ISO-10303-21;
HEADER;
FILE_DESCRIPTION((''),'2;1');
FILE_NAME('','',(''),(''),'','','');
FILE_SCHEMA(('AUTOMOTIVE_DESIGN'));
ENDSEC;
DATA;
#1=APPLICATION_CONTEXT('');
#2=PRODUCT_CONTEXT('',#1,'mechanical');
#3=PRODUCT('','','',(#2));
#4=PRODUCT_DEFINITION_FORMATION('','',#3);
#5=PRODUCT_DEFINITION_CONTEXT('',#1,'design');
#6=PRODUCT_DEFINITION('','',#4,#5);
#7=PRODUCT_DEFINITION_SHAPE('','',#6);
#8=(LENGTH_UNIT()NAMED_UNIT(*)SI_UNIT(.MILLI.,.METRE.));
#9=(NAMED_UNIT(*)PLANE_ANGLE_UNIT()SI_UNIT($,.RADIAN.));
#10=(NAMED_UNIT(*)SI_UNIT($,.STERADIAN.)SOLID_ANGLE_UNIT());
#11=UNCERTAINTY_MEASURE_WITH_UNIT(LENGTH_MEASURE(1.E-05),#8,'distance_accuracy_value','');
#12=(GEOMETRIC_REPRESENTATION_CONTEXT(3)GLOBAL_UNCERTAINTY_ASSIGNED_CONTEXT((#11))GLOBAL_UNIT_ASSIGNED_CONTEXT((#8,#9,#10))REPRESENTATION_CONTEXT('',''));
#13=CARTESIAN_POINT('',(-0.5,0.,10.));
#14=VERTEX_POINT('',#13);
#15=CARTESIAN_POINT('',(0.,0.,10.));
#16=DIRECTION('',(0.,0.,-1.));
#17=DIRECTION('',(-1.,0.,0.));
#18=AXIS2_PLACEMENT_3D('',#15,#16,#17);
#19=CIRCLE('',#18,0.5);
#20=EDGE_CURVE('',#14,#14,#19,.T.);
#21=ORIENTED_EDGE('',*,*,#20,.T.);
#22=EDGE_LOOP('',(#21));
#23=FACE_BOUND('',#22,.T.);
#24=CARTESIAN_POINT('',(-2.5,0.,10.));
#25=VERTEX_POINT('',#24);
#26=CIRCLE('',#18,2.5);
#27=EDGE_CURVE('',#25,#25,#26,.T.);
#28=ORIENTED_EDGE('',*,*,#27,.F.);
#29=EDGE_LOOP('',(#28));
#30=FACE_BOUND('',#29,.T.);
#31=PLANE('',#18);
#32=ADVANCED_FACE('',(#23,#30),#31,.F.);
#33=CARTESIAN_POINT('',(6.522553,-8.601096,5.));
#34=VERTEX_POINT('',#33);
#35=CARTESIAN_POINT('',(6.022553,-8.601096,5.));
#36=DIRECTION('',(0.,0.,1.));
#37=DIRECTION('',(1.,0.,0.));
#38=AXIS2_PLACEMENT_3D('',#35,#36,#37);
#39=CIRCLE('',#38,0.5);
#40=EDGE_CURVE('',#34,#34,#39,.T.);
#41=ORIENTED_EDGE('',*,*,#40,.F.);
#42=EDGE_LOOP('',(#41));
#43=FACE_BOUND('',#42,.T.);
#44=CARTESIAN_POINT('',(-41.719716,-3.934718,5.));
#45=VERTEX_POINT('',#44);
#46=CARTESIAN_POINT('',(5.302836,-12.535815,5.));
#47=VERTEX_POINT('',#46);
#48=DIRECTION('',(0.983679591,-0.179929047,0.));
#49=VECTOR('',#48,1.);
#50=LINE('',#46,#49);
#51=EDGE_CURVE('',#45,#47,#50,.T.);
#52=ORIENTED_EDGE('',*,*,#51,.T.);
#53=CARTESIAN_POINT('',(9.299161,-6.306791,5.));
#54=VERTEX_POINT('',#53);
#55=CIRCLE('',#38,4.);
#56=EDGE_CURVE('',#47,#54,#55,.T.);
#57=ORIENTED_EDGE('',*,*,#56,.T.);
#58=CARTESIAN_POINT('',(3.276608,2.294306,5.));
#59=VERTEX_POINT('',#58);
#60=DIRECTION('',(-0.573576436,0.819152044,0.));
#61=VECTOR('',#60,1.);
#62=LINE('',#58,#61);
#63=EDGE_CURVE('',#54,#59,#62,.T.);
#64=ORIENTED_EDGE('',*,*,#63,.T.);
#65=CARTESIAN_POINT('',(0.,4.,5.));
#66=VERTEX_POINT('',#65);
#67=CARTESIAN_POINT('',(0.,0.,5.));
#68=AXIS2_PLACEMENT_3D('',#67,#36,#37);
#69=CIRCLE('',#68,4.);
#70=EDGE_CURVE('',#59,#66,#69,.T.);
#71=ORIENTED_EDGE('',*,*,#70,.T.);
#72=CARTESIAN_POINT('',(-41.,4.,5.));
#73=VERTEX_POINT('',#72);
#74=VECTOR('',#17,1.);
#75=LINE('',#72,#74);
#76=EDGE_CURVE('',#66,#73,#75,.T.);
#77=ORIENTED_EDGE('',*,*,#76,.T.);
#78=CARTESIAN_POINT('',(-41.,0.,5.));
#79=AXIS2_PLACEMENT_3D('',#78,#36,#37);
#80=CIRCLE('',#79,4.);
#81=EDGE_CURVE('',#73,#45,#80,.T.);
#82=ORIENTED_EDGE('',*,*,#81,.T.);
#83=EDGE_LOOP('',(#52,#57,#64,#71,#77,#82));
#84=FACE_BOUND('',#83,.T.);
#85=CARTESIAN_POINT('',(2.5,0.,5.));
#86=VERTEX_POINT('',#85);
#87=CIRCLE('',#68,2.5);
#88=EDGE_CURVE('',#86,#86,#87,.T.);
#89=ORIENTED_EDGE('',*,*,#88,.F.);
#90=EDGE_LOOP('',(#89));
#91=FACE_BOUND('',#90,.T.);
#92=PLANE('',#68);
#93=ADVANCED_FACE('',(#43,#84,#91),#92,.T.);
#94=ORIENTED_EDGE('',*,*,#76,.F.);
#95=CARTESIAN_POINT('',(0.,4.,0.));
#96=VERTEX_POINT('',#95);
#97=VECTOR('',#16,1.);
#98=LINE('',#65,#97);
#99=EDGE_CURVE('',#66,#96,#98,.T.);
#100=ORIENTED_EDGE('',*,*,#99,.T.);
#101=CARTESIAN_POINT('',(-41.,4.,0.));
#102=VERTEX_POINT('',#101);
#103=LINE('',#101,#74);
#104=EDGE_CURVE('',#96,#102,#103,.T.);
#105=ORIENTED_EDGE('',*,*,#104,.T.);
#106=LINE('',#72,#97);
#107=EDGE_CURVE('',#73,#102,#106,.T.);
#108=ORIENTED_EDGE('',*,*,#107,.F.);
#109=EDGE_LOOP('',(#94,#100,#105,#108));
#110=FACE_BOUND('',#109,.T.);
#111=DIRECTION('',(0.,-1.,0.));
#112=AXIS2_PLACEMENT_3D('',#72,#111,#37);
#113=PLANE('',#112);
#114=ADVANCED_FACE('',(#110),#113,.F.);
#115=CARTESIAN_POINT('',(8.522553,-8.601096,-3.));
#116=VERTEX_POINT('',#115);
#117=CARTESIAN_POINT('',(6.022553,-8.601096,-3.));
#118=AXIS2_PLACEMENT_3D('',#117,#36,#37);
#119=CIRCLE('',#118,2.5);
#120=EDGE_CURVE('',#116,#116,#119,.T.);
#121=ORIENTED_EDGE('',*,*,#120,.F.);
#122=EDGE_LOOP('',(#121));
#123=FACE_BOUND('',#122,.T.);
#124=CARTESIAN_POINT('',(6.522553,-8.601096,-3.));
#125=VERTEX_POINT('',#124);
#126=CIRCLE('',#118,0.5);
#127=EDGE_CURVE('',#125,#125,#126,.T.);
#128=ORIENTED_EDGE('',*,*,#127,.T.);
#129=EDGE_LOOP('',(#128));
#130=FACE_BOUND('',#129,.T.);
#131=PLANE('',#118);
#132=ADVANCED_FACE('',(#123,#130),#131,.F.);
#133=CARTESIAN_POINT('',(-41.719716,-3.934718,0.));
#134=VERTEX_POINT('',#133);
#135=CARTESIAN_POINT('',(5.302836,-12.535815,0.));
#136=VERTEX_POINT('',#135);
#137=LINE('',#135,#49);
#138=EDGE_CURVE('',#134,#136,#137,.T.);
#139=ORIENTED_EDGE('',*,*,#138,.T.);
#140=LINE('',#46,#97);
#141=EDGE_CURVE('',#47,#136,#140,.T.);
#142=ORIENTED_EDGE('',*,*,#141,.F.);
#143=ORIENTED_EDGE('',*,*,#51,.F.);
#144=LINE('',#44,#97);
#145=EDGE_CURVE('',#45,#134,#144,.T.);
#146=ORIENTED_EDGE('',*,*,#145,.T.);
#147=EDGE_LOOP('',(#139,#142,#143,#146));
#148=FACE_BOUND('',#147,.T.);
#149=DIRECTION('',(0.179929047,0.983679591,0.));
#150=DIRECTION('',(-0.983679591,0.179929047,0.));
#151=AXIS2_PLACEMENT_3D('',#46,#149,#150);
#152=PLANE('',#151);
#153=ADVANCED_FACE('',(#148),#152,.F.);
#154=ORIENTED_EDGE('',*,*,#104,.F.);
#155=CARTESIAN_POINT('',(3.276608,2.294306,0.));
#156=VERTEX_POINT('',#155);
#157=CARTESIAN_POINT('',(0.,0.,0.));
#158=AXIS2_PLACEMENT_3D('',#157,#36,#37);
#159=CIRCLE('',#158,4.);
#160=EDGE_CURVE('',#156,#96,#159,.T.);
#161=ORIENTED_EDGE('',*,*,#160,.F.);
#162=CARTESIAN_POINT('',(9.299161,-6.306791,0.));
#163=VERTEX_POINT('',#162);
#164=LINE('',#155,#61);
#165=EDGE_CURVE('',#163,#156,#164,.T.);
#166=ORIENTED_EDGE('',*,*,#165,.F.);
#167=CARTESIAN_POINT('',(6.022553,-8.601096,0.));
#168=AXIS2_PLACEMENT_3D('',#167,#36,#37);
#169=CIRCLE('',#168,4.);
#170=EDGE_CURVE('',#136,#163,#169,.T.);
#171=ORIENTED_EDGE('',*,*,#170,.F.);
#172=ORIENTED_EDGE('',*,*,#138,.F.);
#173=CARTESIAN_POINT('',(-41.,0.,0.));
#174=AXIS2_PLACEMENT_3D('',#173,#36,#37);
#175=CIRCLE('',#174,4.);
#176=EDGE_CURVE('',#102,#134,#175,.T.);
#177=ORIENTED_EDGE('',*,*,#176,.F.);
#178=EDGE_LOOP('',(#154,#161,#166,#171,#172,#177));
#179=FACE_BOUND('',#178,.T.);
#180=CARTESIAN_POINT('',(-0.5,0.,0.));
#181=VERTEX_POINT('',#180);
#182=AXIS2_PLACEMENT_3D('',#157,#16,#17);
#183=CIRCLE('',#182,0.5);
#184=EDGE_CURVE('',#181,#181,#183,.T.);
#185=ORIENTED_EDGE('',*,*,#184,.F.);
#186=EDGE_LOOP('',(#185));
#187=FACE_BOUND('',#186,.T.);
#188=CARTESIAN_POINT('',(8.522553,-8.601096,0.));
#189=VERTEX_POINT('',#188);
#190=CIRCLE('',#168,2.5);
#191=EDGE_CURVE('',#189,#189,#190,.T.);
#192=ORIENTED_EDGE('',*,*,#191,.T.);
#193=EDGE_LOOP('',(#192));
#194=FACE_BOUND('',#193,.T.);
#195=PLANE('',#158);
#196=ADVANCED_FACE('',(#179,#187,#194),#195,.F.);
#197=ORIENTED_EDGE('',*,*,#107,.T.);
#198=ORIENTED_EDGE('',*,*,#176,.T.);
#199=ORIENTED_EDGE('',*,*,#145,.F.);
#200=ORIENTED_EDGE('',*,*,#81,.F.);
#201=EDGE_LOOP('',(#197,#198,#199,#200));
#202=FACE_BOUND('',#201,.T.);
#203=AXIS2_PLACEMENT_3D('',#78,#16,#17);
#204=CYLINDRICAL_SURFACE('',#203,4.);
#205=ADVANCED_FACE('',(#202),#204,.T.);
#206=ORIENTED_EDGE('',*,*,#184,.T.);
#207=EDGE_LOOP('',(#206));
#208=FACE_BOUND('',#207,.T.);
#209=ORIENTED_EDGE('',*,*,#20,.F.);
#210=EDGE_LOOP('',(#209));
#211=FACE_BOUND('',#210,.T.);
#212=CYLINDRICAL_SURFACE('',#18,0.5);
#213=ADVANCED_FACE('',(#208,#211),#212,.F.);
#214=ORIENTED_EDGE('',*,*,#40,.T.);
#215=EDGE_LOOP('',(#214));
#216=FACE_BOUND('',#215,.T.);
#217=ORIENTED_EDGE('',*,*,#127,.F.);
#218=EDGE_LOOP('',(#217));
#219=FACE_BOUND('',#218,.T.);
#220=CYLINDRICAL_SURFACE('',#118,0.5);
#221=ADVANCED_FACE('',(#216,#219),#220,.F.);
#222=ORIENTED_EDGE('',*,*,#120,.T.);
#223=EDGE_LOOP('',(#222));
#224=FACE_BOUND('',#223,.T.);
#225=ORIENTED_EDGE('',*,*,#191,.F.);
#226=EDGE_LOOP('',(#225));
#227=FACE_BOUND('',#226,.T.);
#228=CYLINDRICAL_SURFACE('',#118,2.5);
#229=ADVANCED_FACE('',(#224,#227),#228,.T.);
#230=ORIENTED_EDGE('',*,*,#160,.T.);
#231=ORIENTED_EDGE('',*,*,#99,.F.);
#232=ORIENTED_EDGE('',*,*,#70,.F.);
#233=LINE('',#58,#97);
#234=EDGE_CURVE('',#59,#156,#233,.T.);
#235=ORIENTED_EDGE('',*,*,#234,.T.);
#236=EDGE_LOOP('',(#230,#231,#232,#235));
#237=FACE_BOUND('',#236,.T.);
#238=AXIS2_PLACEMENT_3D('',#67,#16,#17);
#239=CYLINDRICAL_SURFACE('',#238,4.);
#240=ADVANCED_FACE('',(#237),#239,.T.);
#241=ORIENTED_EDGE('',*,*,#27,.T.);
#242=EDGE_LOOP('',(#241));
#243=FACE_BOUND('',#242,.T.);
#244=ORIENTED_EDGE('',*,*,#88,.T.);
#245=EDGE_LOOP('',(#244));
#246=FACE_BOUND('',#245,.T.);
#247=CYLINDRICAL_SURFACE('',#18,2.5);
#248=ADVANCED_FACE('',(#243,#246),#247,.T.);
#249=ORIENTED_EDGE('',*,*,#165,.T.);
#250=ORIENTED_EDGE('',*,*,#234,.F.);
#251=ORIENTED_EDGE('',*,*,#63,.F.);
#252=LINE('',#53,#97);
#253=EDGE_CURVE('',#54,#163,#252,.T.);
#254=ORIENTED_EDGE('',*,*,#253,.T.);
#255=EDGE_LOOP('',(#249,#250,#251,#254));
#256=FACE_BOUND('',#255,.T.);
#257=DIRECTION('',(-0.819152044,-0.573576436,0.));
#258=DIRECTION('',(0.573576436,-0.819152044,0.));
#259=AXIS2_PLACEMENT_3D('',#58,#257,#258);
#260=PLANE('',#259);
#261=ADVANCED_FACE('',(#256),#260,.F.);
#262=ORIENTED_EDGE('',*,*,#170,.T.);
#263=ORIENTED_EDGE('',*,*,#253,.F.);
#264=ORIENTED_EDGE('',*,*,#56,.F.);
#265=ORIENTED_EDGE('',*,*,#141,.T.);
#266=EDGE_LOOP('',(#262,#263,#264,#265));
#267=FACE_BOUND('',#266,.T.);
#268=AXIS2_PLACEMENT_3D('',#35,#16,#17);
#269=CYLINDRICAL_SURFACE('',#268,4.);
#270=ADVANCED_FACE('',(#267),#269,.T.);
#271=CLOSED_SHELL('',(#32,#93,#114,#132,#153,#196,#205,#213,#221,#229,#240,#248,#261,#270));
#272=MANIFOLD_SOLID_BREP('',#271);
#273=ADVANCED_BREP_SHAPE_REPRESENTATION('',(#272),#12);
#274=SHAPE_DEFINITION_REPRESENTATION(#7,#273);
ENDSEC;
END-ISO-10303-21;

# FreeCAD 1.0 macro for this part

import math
import FreeCAD as App
import Part
import Sketcher

V = App.Vector
Q = App.Units.Quantity

doc = App.newDocument("Part")
params = doc.addObject("Spreadsheet::Sheet", "Params")
for row, (alias, value) in enumerate([
    ("sketch1_diameter", "5 mm"),
    ("sketch1_radius", "4 mm"),
    ("sketch1_width", "41 mm"),
    ("sketch1_length", "10.5 mm"),
    ("pad1_length", "5 mm"),
    ("sketch2_diameter", "5 mm"),
    ("sketch2_diameter2", "1 mm"),
    ("pad2_length", "8 mm"),
    ("sketch3_diameter", "5 mm"),
    ("sketch3_diameter2", "1 mm"),
    ("pad3_length", "10 mm"),
], start=1):
    params.set(f"A{row}", alias)
    params.set(f"B{row}", "=" + value)
    params.setAlias(f"B{row}", alias)

body = doc.addObject("PartDesign::Body", "Body")

sketch1 = body.newObject("Sketcher::SketchObject", "Sketch")
sketch1.AttachmentSupport = (doc.getObject("XY_Plane"), [""])
sketch1.MapMode = "FlatFace"
sketch1.addGeometry(Part.LineSegment(V(0, 4, 0), V(-41, 4, 0)), False)
sketch1.addGeometry(Part.ArcOfCircle(Part.Circle(V(-41, 0, 0), V(0, 0, 1), 4), math.radians(90), math.radians(260)), False)
sketch1.addGeometry(Part.LineSegment(V(-41.7, -3.9, 0), V(5.3, -12.5, 0)), False)
sketch1.addGeometry(Part.ArcOfCircle(Part.Circle(V(6, -8.6, 0), V(0, 0, 1), 4), math.radians(-100), math.radians(35)), False)
sketch1.addGeometry(Part.LineSegment(V(9.3, -6.3, 0), V(3.3, 2.3, 0)), False)
sketch1.addGeometry(Part.ArcOfCircle(Part.Circle(V(0, 0, 0), V(0, 0, 1), 4), math.radians(35), math.radians(90)), False)
sketch1.addGeometry(Part.Circle(V(6, -8.6, 0), V(0, 0, 1), 2.5), False)
sketch1.addGeometry(Part.Circle(V(0, 0, 0), V(0, 0, 1), 2.5), False)
sketch1.addConstraint(Sketcher.Constraint("Tangent", 0, 2, 1, 1))
sketch1.addConstraint(Sketcher.Constraint("Tangent", 1, 2, 2, 1))
sketch1.addConstraint(Sketcher.Constraint("Tangent", 2, 2, 3, 1))
sketch1.addConstraint(Sketcher.Constraint("Tangent", 3, 2, 4, 1))
sketch1.addConstraint(Sketcher.Constraint("Tangent", 4, 2, 5, 1))
sketch1.addConstraint(Sketcher.Constraint("Tangent", 5, 2, 0, 1))
sketch1.addConstraint(Sketcher.Constraint("Horizontal", 0))
sketch1.addConstraint(Sketcher.Constraint("Coincident", 5, 3, -1, 1))
sketch1.addConstraint(Sketcher.Constraint("Coincident", 7, 3, -1, 1))
sketch1.addConstraint(Sketcher.Constraint("Coincident", 6, 3, 3, 3))
sketch1.addConstraint(Sketcher.Constraint("Equal", 1, 3))
sketch1.addConstraint(Sketcher.Constraint("Equal", 3, 5))
sketch1.addConstraint(Sketcher.Constraint("Equal", 6, 7))
sketch1.addConstraint(Sketcher.Constraint("Diameter", 6, 5.0))
sketch1.addConstraint(Sketcher.Constraint("Radius", 1, 4.0))
sketch1.addConstraint(Sketcher.Constraint("DistanceX", 0, 2, 0, 1, 41.0))
sketch1.addConstraint(Sketcher.Constraint("Angle", 4, Q("125 deg")))
sketch1.addConstraint(Sketcher.Constraint("Distance", 4, 10.5))
sketch1.setExpression("Constraints[13]", "Params.sketch1_diameter")
sketch1.setExpression("Constraints[14]", "Params.sketch1_radius")
sketch1.setExpression("Constraints[15]", "Params.sketch1_width")
sketch1.setExpression("Constraints[17]", "Params.sketch1_length")
pad1 = body.newObject("PartDesign::Pad", "Pad")
pad1.Profile = sketch1
pad1.setExpression("Length", "Params.pad1_length")

sketch2 = body.newObject("Sketcher::SketchObject", "Sketch001")
sketch2.AttachmentSupport = (doc.getObject("XY_Plane"), [""])
sketch2.MapMode = "FlatFace"
sketch2.AttachmentOffset = App.Placement(V(0, 0, -3), App.Rotation())
sketch2.addGeometry(Part.Circle(V(6, -8.6, 0), V(0, 0, 1), 2.5), False)
sketch2.addGeometry(Part.Circle(V(6, -8.6, 0), V(0, 0, 1), 0.5), False)
sketch2.addConstraint(Sketcher.Constraint("Coincident", 1, 3, 0, 3))
sketch2.addConstraint(Sketcher.Constraint("Diameter", 0, 5.0))
sketch2.addConstraint(Sketcher.Constraint("Diameter", 1, 1.0))
sketch2.addConstraint(Sketcher.Constraint("DistanceX", -1, 1, 0, 3, 6.022553))
sketch2.addConstraint(Sketcher.Constraint("DistanceY", 0, 3, -1, 1, 8.601096))
sketch2.setExpression("Constraints[1]", "Params.sketch2_diameter")
sketch2.setExpression("Constraints[2]", "Params.sketch2_diameter2")
pad2 = body.newObject("PartDesign::Pad", "Pad001")
pad2.Profile = sketch2
pad2.setExpression("Length", "Params.pad2_length")

sketch3 = body.newObject("Sketcher::SketchObject", "Sketch002")
sketch3.AttachmentSupport = (doc.getObject("XY_Plane"), [""])
sketch3.MapMode = "FlatFace"
sketch3.addGeometry(Part.Circle(V(0, 0, 0), V(0, 0, 1), 2.5), False)
sketch3.addGeometry(Part.Circle(V(0, 0, 0), V(0, 0, 1), 0.5), False)
sketch3.addConstraint(Sketcher.Constraint("Coincident", 0, 3, -1, 1))
sketch3.addConstraint(Sketcher.Constraint("Coincident", 1, 3, -1, 1))
sketch3.addConstraint(Sketcher.Constraint("Diameter", 0, 5.0))
sketch3.addConstraint(Sketcher.Constraint("Diameter", 1, 1.0))
sketch3.setExpression("Constraints[2]", "Params.sketch3_diameter")
sketch3.setExpression("Constraints[3]", "Params.sketch3_diameter2")
pad3 = body.newObject("PartDesign::Pad", "Pad002")
pad3.Profile = sketch3
pad3.setExpression("Length", "Params.pad3_length")

doc.recompute()
